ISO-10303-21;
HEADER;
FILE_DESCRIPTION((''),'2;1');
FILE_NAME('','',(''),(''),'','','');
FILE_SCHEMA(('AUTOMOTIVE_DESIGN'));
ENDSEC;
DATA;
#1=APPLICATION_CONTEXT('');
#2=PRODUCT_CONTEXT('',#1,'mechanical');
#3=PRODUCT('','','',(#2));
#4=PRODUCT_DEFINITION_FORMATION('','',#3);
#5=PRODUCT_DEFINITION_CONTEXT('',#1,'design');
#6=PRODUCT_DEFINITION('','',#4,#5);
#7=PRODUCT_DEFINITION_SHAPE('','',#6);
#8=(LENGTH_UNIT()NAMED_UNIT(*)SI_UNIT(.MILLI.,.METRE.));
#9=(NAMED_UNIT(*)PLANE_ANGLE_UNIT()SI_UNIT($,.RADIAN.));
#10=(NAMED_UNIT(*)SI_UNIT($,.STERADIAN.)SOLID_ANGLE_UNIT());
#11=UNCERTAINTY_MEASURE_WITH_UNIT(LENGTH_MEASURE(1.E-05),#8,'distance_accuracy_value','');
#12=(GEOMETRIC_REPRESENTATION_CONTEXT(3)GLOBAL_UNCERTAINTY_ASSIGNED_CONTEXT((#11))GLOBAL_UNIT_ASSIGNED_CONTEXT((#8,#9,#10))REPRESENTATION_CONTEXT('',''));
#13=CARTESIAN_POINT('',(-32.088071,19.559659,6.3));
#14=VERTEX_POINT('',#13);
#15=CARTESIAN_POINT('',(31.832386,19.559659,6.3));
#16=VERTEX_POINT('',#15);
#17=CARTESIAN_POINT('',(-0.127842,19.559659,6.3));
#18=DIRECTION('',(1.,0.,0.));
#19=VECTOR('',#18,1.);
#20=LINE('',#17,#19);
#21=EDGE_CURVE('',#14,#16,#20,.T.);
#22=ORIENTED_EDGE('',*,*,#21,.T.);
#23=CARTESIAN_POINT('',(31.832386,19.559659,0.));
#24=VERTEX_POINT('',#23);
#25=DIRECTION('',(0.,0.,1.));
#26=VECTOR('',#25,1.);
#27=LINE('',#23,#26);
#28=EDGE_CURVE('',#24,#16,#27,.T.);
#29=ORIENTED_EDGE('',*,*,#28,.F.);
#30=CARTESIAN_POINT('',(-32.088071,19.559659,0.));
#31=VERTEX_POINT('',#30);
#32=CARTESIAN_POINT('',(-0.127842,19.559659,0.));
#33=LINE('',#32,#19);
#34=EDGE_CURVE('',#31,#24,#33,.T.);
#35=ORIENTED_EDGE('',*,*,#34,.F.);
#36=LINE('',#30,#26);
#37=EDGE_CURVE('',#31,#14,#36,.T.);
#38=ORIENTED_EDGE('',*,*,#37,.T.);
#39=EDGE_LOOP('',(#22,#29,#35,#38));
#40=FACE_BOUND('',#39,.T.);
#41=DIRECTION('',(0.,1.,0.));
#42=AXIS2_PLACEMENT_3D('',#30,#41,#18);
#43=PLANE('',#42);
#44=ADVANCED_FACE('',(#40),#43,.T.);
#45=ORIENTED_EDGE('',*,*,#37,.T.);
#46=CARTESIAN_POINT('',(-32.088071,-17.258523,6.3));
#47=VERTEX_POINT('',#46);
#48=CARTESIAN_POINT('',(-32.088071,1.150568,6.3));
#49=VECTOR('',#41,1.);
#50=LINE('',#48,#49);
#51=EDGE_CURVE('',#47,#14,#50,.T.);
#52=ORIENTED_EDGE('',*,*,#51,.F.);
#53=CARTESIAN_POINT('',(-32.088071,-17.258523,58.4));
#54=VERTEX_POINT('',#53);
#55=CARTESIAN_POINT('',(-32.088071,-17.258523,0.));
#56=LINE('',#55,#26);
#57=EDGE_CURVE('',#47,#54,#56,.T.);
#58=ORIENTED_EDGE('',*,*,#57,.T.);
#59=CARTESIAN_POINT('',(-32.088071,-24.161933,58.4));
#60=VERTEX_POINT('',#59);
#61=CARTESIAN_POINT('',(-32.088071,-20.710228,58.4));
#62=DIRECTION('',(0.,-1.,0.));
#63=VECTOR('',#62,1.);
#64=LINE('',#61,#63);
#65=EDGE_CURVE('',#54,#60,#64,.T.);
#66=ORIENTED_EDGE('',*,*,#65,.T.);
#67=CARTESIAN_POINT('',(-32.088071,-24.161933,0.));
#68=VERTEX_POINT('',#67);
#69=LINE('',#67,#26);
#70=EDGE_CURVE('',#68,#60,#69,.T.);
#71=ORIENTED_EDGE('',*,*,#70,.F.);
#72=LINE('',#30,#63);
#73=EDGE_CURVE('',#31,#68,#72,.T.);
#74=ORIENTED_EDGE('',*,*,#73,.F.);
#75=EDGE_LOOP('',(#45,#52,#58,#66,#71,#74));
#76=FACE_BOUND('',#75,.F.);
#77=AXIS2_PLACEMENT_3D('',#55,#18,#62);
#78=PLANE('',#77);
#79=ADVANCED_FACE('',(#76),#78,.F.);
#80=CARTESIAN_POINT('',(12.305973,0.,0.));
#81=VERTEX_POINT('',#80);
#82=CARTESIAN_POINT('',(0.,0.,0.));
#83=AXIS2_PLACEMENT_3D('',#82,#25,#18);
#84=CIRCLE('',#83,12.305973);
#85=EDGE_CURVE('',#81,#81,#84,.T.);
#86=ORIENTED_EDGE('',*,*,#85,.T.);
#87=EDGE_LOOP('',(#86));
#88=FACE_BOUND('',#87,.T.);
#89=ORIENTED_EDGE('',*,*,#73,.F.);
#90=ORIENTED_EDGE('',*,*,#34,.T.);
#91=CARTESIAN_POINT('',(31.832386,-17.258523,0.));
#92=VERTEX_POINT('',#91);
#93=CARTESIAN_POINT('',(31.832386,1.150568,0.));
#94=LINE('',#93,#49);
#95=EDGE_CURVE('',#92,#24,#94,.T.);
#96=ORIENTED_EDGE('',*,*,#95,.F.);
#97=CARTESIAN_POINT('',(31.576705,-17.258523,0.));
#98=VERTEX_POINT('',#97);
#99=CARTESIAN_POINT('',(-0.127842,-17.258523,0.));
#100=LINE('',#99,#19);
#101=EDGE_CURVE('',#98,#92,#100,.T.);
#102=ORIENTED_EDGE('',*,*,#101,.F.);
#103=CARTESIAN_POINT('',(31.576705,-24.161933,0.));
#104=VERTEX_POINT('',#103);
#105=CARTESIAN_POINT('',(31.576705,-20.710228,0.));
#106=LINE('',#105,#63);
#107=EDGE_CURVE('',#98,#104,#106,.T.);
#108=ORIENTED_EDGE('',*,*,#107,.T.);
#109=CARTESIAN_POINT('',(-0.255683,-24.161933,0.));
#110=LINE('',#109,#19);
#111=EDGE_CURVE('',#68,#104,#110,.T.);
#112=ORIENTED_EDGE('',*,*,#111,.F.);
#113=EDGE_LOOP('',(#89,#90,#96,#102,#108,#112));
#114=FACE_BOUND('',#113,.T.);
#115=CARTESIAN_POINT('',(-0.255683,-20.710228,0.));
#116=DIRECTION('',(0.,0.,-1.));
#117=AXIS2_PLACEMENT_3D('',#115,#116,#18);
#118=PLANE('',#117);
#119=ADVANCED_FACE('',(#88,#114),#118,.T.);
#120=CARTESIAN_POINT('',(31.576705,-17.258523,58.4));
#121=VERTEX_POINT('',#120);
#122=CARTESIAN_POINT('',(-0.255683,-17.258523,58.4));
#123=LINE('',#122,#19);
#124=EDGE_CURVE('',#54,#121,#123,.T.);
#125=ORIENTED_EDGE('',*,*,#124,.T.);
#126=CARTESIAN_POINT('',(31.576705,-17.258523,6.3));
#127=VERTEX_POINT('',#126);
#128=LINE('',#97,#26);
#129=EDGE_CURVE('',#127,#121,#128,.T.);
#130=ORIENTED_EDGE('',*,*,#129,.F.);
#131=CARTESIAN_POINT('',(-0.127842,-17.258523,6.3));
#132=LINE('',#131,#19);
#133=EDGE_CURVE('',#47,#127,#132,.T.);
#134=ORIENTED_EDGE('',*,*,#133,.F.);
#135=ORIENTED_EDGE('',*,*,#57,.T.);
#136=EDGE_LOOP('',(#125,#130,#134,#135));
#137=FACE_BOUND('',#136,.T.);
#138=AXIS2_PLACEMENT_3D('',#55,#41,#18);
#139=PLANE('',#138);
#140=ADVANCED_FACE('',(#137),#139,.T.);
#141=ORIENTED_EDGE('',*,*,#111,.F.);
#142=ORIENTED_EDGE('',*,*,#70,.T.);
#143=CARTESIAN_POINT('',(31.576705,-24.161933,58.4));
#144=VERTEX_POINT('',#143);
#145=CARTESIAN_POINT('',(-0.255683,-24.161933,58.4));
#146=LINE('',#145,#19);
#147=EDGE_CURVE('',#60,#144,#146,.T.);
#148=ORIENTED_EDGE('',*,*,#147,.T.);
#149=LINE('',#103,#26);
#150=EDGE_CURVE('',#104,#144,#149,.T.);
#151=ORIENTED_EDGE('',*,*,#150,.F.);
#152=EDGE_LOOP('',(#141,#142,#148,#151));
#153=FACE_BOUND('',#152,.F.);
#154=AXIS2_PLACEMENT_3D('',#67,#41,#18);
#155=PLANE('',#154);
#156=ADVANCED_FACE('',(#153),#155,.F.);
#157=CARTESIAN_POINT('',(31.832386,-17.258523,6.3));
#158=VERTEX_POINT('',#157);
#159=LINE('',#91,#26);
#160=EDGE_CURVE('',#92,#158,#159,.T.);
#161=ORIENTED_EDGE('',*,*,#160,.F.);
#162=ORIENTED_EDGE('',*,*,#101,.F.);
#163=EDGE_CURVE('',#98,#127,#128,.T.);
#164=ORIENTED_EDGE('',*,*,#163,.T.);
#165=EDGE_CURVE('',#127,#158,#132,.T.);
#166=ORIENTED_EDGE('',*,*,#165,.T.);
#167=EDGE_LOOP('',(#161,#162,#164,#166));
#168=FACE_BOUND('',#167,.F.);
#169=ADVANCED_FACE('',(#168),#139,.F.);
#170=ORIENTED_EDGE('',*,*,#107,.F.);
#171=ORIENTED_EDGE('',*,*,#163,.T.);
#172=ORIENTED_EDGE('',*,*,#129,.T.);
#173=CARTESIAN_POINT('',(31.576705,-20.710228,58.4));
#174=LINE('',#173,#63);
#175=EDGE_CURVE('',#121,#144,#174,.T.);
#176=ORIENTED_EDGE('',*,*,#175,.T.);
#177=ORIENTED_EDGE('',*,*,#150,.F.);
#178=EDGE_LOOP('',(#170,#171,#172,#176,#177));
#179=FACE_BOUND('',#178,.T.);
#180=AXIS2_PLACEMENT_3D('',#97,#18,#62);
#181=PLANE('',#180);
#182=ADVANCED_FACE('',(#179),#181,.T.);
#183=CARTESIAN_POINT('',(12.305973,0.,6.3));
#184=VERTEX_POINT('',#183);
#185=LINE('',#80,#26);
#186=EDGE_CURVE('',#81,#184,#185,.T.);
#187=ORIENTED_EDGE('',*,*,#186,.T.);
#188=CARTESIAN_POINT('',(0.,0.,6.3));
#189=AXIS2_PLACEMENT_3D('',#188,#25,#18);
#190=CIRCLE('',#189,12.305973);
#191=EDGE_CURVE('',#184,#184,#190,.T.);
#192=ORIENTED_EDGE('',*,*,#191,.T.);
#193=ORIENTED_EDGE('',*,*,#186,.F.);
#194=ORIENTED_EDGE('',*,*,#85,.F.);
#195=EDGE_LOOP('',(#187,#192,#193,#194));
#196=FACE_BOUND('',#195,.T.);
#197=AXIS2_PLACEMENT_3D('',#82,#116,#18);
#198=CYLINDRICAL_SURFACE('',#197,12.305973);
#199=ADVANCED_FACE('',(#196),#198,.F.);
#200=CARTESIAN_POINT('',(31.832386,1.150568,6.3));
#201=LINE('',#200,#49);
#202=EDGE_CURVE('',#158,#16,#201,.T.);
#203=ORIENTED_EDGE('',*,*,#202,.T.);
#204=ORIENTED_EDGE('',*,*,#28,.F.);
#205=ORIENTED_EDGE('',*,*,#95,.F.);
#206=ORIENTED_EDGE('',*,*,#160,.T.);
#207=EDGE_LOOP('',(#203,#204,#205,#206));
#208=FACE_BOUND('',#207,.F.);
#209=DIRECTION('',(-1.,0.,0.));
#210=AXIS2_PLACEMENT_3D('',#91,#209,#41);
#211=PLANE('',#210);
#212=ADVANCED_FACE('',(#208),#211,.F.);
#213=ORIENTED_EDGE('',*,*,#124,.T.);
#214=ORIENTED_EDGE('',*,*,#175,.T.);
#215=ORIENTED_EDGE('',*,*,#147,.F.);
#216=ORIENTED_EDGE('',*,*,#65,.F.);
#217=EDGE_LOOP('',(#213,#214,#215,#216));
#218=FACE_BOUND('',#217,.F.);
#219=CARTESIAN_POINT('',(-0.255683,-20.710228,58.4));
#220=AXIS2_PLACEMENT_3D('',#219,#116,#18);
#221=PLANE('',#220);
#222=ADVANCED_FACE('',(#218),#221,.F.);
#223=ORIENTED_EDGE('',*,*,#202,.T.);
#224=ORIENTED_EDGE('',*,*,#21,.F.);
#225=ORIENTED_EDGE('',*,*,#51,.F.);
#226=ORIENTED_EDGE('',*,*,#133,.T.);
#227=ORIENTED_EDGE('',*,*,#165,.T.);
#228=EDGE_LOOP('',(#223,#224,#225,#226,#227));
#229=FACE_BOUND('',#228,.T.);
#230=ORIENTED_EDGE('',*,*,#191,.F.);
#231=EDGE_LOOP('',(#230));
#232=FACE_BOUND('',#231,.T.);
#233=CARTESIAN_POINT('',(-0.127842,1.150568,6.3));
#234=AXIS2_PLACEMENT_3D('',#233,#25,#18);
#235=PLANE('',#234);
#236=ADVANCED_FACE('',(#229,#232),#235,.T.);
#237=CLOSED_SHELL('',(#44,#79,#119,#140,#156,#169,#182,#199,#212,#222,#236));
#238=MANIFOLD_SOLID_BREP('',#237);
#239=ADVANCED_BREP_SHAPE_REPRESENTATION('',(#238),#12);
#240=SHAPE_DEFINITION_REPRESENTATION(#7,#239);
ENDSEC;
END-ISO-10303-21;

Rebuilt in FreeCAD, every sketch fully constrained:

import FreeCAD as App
import Part
import Sketcher

V = App.Vector

doc = App.newDocument("Part")
params = doc.addObject("Spreadsheet::Sheet", "Params")
for row, (alias, value) in enumerate([
    ("pad1_length", "6.3 mm"),
    ("pad2_length", "58.4 mm"),
], start=1):
    params.set(f"A{row}", alias)
    params.set(f"B{row}", "=" + value)
    params.setAlias(f"B{row}", alias)

body = doc.addObject("PartDesign::Body", "Body")

sketch1 = body.newObject("Sketcher::SketchObject", "Sketch")
sketch1.AttachmentSupport = (doc.getObject("XY_Plane"), [""])
sketch1.MapMode = "FlatFace"
sketch1.addGeometry([
    Part.LineSegment(V(-32, 20, 0), V(-32, -17, 0)),
    Part.LineSegment(V(-32, -17, 0), V(32, -17, 0)),
    Part.LineSegment(V(32, -17, 0), V(32, 20, 0)),
    Part.LineSegment(V(32, 20, 0), V(-32, 20, 0)),
    Part.Circle(V(0, 0, 0), V(0, 0, 1), 12),
], False)
sketch1.addConstraint([
    Sketcher.Constraint("Coincident", 0, 2, 1, 1),
    Sketcher.Constraint("Coincident", 1, 2, 2, 1),
    Sketcher.Constraint("Coincident", 2, 2, 3, 1),
    Sketcher.Constraint("Coincident", 3, 2, 0, 1),
    Sketcher.Constraint("Vertical", 0),
    Sketcher.Constraint("Horizontal", 1),
    Sketcher.Constraint("Vertical", 2),
    Sketcher.Constraint("Horizontal", 3),
    Sketcher.Constraint("Coincident", 4, 3, -1, 1),
    Sketcher.Constraint("Diameter", 4, 24.611946),
    Sketcher.Constraint("DistanceX", 1, 1, 1, 2, 63.920457),
    Sketcher.Constraint("DistanceY", 0, 2, 0, 1, 36.818182),
    Sketcher.Constraint("DistanceX", 0, 2, -1, 1, 32.088071),
    Sketcher.Constraint("DistanceY", -1, 1, 2, 2, 19.559659),
])
pad1 = body.newObject("PartDesign::Pad", "Pad")
pad1.Profile = sketch1
pad1.setExpression("Length", "Params.pad1_length")

sketch2 = body.newObject("Sketcher::SketchObject", "Sketch001")
sketch2.AttachmentSupport = (doc.getObject("XY_Plane"), [""])
sketch2.MapMode = "FlatFace"
sketch2.addGeometry([
    Part.LineSegment(V(-32, -24, 0), V(-32, -17, 0)),
    Part.LineSegment(V(-32, -17, 0), V(32, -17, 0)),
    Part.LineSegment(V(32, -17, 0), V(32, -24, 0)),
    Part.LineSegment(V(32, -24, 0), V(-32, -24, 0)),
], False)
sketch2.addConstraint([
    Sketcher.Constraint("Coincident", 0, 2, 1, 1),
    Sketcher.Constraint("Coincident", 1, 2, 2, 1),
    Sketcher.Constraint("Coincident", 2, 2, 3, 1),
    Sketcher.Constraint("Coincident", 3, 2, 0, 1),
    Sketcher.Constraint("Vertical", 0),
    Sketcher.Constraint("Horizontal", 1),
    Sketcher.Constraint("Vertical", 2),
    Sketcher.Constraint("Horizontal", 3),
    Sketcher.Constraint("DistanceY", 0, 1, 0, 2, 6.90341),
    Sketcher.Constraint("DistanceX", 1, 1, 1, 2, 63.664775),
    Sketcher.Constraint("DistanceX", 0, 2, -1, 1, 32.088071),
    Sketcher.Constraint("DistanceY", 0, 2, -1, 1, 17.258523),
])
pad2 = body.newObject("PartDesign::Pad", "Pad001")
pad2.Profile = sketch2
pad2.setExpression("Length", "Params.pad2_length")

doc.recompute()
